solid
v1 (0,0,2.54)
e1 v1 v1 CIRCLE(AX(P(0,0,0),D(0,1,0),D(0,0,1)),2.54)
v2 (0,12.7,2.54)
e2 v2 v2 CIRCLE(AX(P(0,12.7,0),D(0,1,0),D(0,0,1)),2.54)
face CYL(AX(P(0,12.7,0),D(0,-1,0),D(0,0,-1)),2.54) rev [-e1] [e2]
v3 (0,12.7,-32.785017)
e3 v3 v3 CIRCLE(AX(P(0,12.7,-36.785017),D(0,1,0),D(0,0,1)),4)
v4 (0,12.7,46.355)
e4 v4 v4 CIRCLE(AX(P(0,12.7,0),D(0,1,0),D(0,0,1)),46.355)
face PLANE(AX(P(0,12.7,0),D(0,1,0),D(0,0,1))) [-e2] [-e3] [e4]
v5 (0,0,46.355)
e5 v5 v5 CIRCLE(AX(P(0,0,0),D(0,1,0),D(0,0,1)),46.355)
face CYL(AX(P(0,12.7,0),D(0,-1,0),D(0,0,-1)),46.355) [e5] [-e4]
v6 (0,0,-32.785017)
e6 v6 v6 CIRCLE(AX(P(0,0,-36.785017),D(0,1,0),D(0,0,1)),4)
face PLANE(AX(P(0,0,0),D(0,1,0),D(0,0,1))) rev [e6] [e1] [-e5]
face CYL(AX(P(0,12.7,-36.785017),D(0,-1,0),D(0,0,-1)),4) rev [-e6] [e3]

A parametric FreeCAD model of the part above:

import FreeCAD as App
import Part
import Sketcher

V = App.Vector
Q = App.Units.Quantity

doc = App.newDocument("Part")
body = doc.addObject("PartDesign::Body", "Body")

# Sketch on XZ plane
sketch1 = body.newObject("Sketcher::SketchObject", "Sketch")
sketch1.AttachmentSupport = (doc.getObject("XZ_Plane"), [""])
sketch1.MapMode = "FlatFace"
sketch1.addGeometry([
    Part.Circle(V(0, 0, 0), V(0, 0, 1), 46.4),
    Part.Circle(V(0, -36.8, 0), V(0, 0, 1), 4),
    Part.Circle(V(0, 0, 0), V(0, 0, 1), 2.5),
], False)
sketch1.addConstraint([
    Sketcher.Constraint("Coincident", 0, 3, -1, 1),
    Sketcher.Constraint("Coincident", 2, 3, -1, 1),
    Sketcher.Constraint("PointOnObject", 1, 3, -2),
    Sketcher.Constraint("Diameter", 2, Q("0.2 in")),
    Sketcher.Constraint("Diameter", 0, Q("3.65 in")),
    Sketcher.Constraint("Diameter", 1, 8.0),
    Sketcher.Constraint("DistanceY", 1, 3, -1, 1, 36.785017),
])
pad1 = body.newObject("PartDesign::Pad", "Pad")
pad1.Profile = sketch1
pad1.Length = Q("0.5 in")
pad1.Reversed = True

doc.recompute()
